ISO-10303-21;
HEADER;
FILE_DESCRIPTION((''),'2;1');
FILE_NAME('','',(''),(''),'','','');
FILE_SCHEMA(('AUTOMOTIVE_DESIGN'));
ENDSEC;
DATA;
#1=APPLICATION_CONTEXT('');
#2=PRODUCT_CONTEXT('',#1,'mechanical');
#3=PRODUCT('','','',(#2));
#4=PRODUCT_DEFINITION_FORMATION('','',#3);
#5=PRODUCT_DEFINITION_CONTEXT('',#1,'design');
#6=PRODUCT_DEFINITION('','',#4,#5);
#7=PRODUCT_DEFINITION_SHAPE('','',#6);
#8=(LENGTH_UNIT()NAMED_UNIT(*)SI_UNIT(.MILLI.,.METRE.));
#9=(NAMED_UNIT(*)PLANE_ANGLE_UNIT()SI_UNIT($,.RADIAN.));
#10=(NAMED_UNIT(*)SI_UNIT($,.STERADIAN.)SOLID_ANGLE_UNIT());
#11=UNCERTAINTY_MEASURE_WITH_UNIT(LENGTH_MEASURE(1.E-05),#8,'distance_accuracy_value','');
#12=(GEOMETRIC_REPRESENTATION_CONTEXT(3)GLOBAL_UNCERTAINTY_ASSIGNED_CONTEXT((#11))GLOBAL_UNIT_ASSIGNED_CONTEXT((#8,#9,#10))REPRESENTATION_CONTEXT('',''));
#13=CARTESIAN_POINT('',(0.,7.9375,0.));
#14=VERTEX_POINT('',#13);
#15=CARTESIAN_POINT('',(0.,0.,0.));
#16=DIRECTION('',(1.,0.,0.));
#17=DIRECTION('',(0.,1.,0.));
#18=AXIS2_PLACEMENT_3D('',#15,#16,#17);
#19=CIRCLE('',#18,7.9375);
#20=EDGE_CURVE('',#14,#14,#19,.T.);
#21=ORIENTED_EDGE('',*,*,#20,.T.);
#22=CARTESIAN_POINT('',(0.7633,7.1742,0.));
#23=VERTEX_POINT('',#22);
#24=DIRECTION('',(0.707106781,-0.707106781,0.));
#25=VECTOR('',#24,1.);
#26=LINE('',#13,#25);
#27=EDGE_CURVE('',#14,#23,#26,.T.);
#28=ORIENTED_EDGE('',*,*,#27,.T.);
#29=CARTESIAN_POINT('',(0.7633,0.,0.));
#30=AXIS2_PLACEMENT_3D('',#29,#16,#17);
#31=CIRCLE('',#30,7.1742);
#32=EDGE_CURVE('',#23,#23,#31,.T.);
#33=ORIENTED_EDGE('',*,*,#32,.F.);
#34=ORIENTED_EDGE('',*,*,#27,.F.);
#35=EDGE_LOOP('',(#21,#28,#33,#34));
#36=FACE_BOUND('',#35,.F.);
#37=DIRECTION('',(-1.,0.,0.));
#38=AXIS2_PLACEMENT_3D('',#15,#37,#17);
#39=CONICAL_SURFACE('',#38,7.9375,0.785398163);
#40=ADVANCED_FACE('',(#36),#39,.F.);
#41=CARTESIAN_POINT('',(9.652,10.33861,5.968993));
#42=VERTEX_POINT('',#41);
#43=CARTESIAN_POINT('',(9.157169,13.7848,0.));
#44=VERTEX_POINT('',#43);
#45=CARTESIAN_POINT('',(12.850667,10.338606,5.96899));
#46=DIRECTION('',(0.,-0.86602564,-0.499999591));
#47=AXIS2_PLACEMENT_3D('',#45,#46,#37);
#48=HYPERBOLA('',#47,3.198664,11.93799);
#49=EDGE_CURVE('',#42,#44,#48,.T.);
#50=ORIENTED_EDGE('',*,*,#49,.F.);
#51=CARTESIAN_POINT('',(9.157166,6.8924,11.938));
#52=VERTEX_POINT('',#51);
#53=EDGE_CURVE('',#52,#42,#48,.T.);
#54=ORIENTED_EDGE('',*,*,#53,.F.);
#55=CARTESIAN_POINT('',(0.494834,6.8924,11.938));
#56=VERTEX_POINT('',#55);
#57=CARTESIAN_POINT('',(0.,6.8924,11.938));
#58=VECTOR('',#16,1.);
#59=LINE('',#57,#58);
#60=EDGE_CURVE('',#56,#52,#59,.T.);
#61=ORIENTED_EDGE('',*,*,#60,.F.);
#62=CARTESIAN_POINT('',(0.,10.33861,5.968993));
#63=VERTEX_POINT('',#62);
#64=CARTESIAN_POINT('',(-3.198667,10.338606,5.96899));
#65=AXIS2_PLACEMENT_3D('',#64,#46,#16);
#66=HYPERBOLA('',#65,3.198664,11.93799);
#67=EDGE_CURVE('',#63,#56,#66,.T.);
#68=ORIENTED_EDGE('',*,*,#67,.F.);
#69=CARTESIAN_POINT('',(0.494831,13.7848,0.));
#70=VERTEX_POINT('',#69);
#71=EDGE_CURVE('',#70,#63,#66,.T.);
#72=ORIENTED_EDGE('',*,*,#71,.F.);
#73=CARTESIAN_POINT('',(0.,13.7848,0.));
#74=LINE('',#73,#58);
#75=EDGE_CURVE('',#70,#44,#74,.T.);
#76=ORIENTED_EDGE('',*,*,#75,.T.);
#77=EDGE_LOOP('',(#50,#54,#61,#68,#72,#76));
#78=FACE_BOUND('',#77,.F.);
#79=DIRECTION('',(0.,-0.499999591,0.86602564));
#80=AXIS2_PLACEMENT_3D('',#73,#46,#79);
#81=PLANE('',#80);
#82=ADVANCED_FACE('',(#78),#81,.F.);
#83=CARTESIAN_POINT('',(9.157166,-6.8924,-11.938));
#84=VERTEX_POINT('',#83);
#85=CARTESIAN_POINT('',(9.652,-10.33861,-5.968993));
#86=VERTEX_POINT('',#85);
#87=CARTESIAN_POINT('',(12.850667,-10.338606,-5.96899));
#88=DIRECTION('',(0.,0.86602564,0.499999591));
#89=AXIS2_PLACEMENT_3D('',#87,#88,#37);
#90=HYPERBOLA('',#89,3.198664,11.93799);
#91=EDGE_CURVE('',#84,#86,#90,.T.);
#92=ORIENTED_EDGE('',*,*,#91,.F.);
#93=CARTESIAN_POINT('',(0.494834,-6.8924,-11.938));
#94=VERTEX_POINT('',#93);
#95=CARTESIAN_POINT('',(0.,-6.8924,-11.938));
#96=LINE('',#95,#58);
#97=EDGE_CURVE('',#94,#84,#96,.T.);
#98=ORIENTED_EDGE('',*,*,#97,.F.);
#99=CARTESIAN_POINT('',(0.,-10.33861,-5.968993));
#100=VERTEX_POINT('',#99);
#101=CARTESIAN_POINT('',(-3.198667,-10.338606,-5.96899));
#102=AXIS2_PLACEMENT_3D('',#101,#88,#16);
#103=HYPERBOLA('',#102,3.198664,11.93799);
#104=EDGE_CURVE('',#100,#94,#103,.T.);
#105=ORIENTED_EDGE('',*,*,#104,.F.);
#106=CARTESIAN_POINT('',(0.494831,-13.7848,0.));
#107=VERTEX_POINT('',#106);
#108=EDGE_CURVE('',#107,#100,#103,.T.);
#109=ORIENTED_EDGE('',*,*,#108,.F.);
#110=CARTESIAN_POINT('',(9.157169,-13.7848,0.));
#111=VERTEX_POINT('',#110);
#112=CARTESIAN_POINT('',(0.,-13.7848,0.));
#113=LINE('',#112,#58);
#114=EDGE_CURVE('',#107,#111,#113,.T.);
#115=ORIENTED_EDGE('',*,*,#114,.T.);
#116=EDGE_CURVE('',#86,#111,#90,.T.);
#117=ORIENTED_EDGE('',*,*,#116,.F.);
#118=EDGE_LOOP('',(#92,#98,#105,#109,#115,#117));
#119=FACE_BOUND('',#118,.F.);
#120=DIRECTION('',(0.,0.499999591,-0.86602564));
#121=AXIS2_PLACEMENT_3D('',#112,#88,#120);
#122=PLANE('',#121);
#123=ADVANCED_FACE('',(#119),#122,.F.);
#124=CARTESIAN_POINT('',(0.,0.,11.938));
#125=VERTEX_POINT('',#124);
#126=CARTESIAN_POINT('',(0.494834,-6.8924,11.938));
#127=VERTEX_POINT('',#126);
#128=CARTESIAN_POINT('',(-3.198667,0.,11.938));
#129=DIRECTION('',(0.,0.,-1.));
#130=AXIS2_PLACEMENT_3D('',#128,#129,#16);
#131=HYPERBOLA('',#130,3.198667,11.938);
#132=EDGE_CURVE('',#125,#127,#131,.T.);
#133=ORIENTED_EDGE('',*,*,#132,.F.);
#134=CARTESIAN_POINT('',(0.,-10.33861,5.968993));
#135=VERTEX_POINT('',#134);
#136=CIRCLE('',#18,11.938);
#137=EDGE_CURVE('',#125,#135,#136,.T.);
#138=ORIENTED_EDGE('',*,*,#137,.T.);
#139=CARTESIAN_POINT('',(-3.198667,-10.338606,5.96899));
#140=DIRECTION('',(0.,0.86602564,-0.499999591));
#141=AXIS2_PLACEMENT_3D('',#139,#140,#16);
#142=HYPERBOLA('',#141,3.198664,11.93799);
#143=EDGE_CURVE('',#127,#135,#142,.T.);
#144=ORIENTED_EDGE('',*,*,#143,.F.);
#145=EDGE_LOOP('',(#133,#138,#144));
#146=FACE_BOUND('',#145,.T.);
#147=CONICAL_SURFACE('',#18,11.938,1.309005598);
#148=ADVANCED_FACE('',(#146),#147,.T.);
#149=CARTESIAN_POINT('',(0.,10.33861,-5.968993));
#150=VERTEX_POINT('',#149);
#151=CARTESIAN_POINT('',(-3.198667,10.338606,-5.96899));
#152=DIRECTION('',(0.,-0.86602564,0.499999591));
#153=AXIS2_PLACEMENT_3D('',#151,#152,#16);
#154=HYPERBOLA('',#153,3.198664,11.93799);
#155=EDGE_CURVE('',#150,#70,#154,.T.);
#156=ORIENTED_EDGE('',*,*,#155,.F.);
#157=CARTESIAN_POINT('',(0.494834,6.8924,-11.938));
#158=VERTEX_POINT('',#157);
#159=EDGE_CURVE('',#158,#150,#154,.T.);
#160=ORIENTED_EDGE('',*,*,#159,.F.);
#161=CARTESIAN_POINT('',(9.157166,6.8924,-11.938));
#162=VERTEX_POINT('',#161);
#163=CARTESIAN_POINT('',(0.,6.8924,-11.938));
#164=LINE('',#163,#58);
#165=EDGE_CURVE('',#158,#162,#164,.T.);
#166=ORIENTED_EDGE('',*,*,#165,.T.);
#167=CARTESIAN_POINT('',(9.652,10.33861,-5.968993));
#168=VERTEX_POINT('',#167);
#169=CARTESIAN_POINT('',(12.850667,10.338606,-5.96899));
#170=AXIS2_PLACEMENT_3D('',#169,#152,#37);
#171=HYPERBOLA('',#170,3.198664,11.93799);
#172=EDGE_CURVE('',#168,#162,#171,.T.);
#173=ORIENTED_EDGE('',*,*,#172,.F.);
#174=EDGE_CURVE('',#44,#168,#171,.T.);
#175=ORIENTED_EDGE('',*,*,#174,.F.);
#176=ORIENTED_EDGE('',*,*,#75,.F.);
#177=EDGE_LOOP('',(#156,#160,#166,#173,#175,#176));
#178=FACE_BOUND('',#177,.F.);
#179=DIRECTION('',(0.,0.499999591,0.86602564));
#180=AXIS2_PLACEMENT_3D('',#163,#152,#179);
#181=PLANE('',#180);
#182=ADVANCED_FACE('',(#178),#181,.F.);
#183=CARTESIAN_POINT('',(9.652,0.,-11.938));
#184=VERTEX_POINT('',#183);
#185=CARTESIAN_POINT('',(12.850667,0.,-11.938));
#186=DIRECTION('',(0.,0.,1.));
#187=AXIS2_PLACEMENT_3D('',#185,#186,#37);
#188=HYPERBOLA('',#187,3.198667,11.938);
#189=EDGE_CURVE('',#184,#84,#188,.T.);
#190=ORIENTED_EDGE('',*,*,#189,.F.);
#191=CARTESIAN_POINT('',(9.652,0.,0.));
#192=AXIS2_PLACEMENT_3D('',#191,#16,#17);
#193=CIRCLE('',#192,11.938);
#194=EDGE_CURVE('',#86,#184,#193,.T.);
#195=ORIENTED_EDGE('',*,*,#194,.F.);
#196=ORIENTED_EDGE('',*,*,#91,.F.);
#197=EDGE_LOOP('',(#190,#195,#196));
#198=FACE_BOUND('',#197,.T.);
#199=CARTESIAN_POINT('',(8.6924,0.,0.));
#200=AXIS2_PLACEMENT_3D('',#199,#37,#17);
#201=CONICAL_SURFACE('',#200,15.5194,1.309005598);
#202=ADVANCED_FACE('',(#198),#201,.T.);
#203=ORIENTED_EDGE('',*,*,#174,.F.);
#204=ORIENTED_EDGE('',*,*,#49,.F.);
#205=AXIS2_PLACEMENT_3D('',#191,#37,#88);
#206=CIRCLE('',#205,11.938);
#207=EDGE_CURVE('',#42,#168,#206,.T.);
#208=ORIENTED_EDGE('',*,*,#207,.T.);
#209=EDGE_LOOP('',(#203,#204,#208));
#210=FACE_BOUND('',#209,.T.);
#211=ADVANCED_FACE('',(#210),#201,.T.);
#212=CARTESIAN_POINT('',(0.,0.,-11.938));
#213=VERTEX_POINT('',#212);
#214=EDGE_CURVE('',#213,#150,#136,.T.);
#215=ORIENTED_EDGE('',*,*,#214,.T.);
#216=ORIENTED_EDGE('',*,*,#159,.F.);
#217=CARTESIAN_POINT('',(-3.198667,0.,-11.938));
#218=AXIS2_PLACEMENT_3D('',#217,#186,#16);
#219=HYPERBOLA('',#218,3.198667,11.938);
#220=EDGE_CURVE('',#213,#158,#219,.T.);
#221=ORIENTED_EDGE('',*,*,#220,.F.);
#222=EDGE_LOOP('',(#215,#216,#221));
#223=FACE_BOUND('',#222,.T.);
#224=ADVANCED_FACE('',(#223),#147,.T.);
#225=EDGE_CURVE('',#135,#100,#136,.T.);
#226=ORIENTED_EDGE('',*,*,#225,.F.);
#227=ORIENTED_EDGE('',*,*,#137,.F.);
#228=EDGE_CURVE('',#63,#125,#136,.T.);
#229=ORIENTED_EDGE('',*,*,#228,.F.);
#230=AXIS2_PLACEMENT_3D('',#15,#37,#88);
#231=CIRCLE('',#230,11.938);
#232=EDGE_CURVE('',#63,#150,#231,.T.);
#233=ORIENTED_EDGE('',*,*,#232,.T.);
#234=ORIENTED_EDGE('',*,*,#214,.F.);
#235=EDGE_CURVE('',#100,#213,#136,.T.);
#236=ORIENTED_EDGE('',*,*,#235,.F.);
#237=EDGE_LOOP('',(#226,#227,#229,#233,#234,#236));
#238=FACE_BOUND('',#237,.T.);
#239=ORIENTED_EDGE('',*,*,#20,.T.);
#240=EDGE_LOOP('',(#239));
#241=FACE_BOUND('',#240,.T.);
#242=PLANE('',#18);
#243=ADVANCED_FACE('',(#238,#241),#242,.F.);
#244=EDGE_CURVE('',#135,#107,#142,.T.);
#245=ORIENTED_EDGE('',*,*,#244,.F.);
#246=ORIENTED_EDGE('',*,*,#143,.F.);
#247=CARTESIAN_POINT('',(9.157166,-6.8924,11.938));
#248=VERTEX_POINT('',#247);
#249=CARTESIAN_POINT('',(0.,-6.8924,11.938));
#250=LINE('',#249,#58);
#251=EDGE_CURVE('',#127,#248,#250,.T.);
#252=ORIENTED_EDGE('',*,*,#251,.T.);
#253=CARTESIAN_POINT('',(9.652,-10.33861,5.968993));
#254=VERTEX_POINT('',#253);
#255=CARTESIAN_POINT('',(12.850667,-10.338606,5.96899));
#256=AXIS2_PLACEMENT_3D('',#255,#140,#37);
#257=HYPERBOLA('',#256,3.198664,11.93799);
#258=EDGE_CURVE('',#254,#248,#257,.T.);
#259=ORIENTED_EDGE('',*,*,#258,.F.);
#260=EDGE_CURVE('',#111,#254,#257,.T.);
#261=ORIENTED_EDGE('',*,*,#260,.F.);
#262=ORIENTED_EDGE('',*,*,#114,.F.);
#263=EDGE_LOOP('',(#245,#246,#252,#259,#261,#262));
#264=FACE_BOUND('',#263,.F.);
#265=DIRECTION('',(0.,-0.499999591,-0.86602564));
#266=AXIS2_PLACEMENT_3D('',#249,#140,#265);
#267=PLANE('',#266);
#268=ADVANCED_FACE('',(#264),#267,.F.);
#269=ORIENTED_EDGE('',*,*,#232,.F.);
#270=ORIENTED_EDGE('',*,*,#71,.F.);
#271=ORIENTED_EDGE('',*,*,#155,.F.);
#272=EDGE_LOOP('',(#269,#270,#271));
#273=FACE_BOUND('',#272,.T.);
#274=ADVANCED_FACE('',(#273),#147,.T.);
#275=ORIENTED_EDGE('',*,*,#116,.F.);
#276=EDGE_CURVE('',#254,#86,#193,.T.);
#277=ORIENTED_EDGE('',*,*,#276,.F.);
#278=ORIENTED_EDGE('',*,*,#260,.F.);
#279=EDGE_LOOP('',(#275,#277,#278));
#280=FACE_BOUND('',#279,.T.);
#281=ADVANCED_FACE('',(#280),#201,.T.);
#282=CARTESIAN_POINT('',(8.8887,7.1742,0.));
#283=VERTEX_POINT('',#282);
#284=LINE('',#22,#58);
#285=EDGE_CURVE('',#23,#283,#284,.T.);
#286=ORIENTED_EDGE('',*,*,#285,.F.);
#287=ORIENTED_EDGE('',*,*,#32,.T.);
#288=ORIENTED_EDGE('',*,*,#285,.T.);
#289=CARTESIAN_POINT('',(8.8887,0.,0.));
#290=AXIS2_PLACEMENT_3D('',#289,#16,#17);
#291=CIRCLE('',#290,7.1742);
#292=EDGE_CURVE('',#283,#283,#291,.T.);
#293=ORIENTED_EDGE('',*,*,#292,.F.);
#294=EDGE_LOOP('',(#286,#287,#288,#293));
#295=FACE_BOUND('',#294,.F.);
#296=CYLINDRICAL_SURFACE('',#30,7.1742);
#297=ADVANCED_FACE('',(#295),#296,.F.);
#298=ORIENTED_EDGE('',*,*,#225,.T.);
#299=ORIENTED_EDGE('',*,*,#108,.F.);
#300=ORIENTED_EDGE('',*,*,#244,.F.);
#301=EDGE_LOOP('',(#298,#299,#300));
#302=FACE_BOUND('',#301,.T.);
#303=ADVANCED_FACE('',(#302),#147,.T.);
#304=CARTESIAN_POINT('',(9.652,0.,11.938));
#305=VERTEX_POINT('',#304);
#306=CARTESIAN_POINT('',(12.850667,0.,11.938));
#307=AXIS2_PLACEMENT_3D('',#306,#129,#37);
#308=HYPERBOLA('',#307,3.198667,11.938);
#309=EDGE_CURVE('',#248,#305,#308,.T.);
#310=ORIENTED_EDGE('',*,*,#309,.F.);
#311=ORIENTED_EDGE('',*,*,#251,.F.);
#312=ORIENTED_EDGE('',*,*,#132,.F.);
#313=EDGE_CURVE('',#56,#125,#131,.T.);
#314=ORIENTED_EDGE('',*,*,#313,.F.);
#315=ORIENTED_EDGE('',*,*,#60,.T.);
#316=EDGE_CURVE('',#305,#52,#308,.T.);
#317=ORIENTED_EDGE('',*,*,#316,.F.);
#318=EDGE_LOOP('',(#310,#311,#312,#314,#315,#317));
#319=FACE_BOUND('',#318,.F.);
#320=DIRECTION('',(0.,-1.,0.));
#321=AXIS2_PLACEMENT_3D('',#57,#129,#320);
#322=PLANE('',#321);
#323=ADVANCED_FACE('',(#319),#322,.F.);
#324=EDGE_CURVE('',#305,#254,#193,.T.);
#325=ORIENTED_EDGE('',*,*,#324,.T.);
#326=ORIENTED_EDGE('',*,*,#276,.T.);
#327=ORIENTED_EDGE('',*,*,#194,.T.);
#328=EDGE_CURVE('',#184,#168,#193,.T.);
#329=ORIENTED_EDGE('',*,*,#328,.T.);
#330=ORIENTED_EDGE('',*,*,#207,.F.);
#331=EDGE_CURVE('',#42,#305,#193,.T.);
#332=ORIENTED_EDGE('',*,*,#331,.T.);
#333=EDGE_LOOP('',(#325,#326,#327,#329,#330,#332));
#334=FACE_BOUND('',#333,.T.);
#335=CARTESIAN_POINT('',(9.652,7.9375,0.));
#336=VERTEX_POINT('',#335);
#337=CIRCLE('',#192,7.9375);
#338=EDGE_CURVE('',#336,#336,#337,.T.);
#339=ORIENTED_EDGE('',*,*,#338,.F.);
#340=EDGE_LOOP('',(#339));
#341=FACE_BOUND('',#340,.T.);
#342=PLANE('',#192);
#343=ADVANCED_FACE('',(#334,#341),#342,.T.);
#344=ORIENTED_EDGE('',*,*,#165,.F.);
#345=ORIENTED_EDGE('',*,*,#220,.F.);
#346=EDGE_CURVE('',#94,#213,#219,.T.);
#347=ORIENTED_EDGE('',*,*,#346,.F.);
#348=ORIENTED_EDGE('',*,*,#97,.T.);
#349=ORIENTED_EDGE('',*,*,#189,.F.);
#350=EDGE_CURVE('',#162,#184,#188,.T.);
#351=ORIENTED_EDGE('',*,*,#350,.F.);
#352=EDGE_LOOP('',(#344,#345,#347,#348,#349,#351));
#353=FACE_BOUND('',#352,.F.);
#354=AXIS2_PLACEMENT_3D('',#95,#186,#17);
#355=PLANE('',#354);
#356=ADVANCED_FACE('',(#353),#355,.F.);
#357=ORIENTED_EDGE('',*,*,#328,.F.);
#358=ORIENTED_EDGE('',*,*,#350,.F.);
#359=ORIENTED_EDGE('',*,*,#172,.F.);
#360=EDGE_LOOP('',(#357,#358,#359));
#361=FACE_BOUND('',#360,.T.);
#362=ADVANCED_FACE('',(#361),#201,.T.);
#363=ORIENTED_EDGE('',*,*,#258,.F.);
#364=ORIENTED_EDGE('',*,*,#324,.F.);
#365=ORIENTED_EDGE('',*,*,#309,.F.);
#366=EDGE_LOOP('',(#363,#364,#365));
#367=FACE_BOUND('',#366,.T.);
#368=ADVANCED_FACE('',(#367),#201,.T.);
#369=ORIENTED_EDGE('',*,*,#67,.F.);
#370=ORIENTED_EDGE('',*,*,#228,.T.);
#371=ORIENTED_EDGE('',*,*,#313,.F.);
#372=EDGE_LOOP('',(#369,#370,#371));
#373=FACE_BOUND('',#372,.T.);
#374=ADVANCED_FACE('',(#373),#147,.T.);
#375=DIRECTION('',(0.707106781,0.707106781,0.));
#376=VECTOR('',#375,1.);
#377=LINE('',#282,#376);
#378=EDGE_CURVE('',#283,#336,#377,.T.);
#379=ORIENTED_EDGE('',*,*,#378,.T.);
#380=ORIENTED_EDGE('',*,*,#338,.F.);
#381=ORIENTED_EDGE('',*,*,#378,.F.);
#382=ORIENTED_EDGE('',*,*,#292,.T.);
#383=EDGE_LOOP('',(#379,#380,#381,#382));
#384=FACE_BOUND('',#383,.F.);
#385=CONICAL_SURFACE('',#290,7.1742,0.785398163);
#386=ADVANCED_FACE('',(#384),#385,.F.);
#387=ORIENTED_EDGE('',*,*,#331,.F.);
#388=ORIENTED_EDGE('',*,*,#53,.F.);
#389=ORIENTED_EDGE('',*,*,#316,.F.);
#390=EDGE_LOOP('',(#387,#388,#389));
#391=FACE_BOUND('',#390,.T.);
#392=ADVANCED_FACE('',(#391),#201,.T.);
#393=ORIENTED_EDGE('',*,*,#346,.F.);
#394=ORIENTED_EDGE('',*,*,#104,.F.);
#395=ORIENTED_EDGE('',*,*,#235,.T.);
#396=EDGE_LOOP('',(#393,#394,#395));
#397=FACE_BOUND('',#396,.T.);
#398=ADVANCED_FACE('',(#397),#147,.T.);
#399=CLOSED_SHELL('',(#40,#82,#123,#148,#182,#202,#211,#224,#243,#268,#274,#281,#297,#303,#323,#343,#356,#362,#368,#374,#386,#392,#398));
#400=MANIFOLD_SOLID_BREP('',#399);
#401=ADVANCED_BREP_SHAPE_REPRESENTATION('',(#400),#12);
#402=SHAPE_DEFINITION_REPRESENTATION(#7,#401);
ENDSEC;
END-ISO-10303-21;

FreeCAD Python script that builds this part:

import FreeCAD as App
import Part
import Sketcher

V = App.Vector
Q = App.Units.Quantity

doc = App.newDocument("Part")
body = doc.addObject("PartDesign::Body", "Body")

sketch1 = doc.addObject("Sketcher::SketchObject", "Sketch")
body.addObject(sketch1)
sketch1.AttachmentSupport = (doc.XY_Plane, [""])
sketch1.MapMode = "FlatFace"
sketch1.addGeometry(Part.LineSegment(V(0, 0, 0), V(9.7, 0, 0)), False)
sketch1.addGeometry(Part.LineSegment(V(9.7, 0, 0), V(9.7, 11.9, 0)), False)
sketch1.addGeometry(Part.LineSegment(V(9.7, 11.9, 0), V(8.7, 15.5, 0)), False)
sketch1.addGeometry(Part.LineSegment(V(8.7, 15.5, 0), V(1, 15.5, 0)), False)
sketch1.addGeometry(Part.LineSegment(V(1, 15.5, 0), V(0, 11.9, 0)), False)
sketch1.addGeometry(Part.LineSegment(V(0, 11.9, 0), V(0, 0, 0)), False)
sketch1.addConstraint(Sketcher.Constraint("Coincident", 0, 2, 1, 1))
sketch1.addConstraint(Sketcher.Constraint("Coincident", 1, 2, 2, 1))
sketch1.addConstraint(Sketcher.Constraint("Coincident", 2, 2, 3, 1))
sketch1.addConstraint(Sketcher.Constraint("Coincident", 3, 2, 4, 1))
sketch1.addConstraint(Sketcher.Constraint("Coincident", 4, 2, 5, 1))
sketch1.addConstraint(Sketcher.Constraint("Coincident", 5, 2, 0, 1))
sketch1.addConstraint(Sketcher.Constraint("Horizontal", 0))
sketch1.addConstraint(Sketcher.Constraint("Vertical", 1))
sketch1.addConstraint(Sketcher.Constraint("Horizontal", 3))
sketch1.addConstraint(Sketcher.Constraint("Vertical", 5))
sketch1.addConstraint(Sketcher.Constraint("Coincident", 5, 2, -1, 1))
sketch1.addConstraint(Sketcher.Constraint("Horizontal", 1, 2, 4, 2))
sketch1.addConstraint(Sketcher.Constraint("Equal", 2, 4))
sketch1.addConstraint(Sketcher.Constraint("Angle", 2, Q("104.9995 deg")))
sketch1.addConstraint(Sketcher.Constraint("DistanceX", 0, 1, 0, 2, Q("0.38 in")))
sketch1.addConstraint(Sketcher.Constraint("DistanceY", 1, 1, 1, 2, Q("0.47 in")))
sketch1.addConstraint(Sketcher.Constraint("DistanceY", -1, 1, 2, 2, Q("0.611 in")))
revolution = doc.addObject("PartDesign::Revolution", "Revolution")
body.addObject(revolution)
revolution.Profile = sketch1
revolution.ReferenceAxis = (sketch1, ["H_Axis"])
revolution.Angle = 360

sketch2 = doc.addObject("Sketcher::SketchObject", "Sketch001")
body.addObject(sketch2)
sketch2.AttachmentSupport = (doc.YZ_Plane, [""])
sketch2.MapMode = "FlatFace"
sketch2.addGeometry(Part.LineSegment(V(24, 24, 0), V(-24, 24, 0)), False)
sketch2.addGeometry(Part.LineSegment(V(-24, 24, 0), V(-24, -24, 0)), False)
sketch2.addGeometry(Part.LineSegment(V(-24, -24, 0), V(24, -24, 0)), False)
sketch2.addGeometry(Part.LineSegment(V(24, -24, 0), V(24, 24, 0)), False)
sketch2.addGeometry(Part.LineSegment(V(-14, 0, 0), V(-7, 12, 0)), False)
sketch2.addGeometry(Part.LineSegment(V(-7, 12, 0), V(7, 12, 0)), False)
sketch2.addGeometry(Part.LineSegment(V(7, 12, 0), V(14, 0, 0)), False)
sketch2.addGeometry(Part.LineSegment(V(14, 0, 0), V(7, -12, 0)), False)
sketch2.addGeometry(Part.LineSegment(V(7, -12, 0), V(-7, -12, 0)), False)
sketch2.addGeometry(Part.LineSegment(V(-7, -12, 0), V(-14, 0, 0)), False)
sketch2.addConstraint(Sketcher.Constraint("Coincident", 0, 2, 1, 1))
sketch2.addConstraint(Sketcher.Constraint("Coincident", 1, 2, 2, 1))
sketch2.addConstraint(Sketcher.Constraint("Coincident", 2, 2, 3, 1))
sketch2.addConstraint(Sketcher.Constraint("Coincident", 3, 2, 0, 1))
sketch2.addConstraint(Sketcher.Constraint("Coincident", 4, 2, 5, 1))
sketch2.addConstraint(Sketcher.Constraint("Coincident", 5, 2, 6, 1))
sketch2.addConstraint(Sketcher.Constraint("Coincident", 6, 2, 7, 1))
sketch2.addConstraint(Sketcher.Constraint("Coincident", 7, 2, 8, 1))
sketch2.addConstraint(Sketcher.Constraint("Coincident", 8, 2, 9, 1))
sketch2.addConstraint(Sketcher.Constraint("Coincident", 9, 2, 4, 1))
sketch2.addConstraint(Sketcher.Constraint("Horizontal", 0))
sketch2.addConstraint(Sketcher.Constraint("Vertical", 1))
sketch2.addConstraint(Sketcher.Constraint("Horizontal", 2))
sketch2.addConstraint(Sketcher.Constraint("Vertical", 3))
sketch2.addConstraint(Sketcher.Constraint("Horizontal", 5))
sketch2.addConstraint(Sketcher.Constraint("Horizontal", 8))
sketch2.addConstraint(Sketcher.Constraint("Symmetric", 0, 2, 2, 2, -1, 1))
sketch2.addConstraint(Sketcher.Constraint("Symmetric", 4, 2, 7, 2, -1, 1))
sketch2.addConstraint(Sketcher.Constraint("Symmetric", 6, 2, 9, 2, -1, 1))
sketch2.addConstraint(Sketcher.Constraint("PointOnObject", 6, 2, -1))
sketch2.addConstraint(Sketcher.Constraint("Parallel", 6, 9))
sketch2.addConstraint(Sketcher.Constraint("Vertical", 5, 2, 7, 2))
sketch2.addConstraint(Sketcher.Constraint("Equal", 2, 1))
sketch2.addConstraint(Sketcher.Constraint("Angle", 4, Q("60 deg")))
sketch2.addConstraint(Sketcher.Constraint("DistanceX", 0, 2, 0, 1, Q("1.88 in")))
sketch2.addConstraint(Sketcher.Constraint("DistanceY", -1, 1, 4, 2, Q("0.47 in")))
sketch2.addConstraint(Sketcher.Constraint("DistanceX", 5, 1, 5, 2, Q("0.5427 in")))
pocket1 = doc.addObject("PartDesign::Pocket", "Pocket")
body.addObject(pocket1)
pocket1.Profile = sketch2
pocket1.Length = Q("0.38 in")
pocket1.Reversed = True

sketch3 = doc.addObject("Sketcher::SketchObject", "Sketch002")
body.addObject(sketch3)
sketch3.AttachmentSupport = (doc.XY_Plane, [""])
sketch3.MapMode = "FlatFace"
sketch3.addGeometry(Part.LineSegment(V(0, 0, 0), V(9.7, 0, 0)), False)
sketch3.addGeometry(Part.LineSegment(V(9.7, 0, 0), V(9.7, 7.9, 0)), False)
sketch3.addGeometry(Part.LineSegment(V(9.7, 7.9, 0), V(8.9, 7.2, 0)), False)
sketch3.addGeometry(Part.LineSegment(V(8.9, 7.2, 0), V(0.8, 7.2, 0)), False)
sketch3.addGeometry(Part.LineSegment(V(0.8, 7.2, 0), V(0, 7.9, 0)), False)
sketch3.addGeometry(Part.LineSegment(V(0, 7.9, 0), V(0, 0, 0)), False)
sketch3.addConstraint(Sketcher.Constraint("Coincident", 0, 2, 1, 1))
sketch3.addConstraint(Sketcher.Constraint("Coincident", 1, 2, 2, 1))
sketch3.addConstraint(Sketcher.Constraint("Coincident", 2, 2, 3, 1))
sketch3.addConstraint(Sketcher.Constraint("Coincident", 3, 2, 4, 1))
sketch3.addConstraint(Sketcher.Constraint("Coincident", 4, 2, 5, 1))
sketch3.addConstraint(Sketcher.Constraint("Coincident", 5, 2, 0, 1))
sketch3.addConstraint(Sketcher.Constraint("Horizontal", 0))
sketch3.addConstraint(Sketcher.Constraint("Vertical", 1))
sketch3.addConstraint(Sketcher.Constraint("Horizontal", 3))
sketch3.addConstraint(Sketcher.Constraint("Vertical", 5))
sketch3.addConstraint(Sketcher.Constraint("Coincident", 5, 2, -1, 1))
sketch3.addConstraint(Sketcher.Constraint("Perpendicular", 2, 4))
sketch3.addConstraint(Sketcher.Constraint("Horizontal", 1, 2, 4, 2))
sketch3.addConstraint(Sketcher.Constraint("Equal", 2, 4))
sketch3.addConstraint(Sketcher.Constraint("DistanceX", 0, 1, 0, 2, Q("0.38 in")))
sketch3.addConstraint(Sketcher.Constraint("DistanceY", 1, 1, 1, 2, Q("0.3125 in")))
sketch3.addConstraint(Sketcher.Constraint("DistanceX", 3, 2, 3, 1, Q("0.3199 in")))
groove = doc.addObject("PartDesign::Groove", "Groove")
body.addObject(groove)
groove.Profile = sketch3
groove.ReferenceAxis = (sketch3, ["H_Axis"])
groove.Angle = 360

doc.recompute()
